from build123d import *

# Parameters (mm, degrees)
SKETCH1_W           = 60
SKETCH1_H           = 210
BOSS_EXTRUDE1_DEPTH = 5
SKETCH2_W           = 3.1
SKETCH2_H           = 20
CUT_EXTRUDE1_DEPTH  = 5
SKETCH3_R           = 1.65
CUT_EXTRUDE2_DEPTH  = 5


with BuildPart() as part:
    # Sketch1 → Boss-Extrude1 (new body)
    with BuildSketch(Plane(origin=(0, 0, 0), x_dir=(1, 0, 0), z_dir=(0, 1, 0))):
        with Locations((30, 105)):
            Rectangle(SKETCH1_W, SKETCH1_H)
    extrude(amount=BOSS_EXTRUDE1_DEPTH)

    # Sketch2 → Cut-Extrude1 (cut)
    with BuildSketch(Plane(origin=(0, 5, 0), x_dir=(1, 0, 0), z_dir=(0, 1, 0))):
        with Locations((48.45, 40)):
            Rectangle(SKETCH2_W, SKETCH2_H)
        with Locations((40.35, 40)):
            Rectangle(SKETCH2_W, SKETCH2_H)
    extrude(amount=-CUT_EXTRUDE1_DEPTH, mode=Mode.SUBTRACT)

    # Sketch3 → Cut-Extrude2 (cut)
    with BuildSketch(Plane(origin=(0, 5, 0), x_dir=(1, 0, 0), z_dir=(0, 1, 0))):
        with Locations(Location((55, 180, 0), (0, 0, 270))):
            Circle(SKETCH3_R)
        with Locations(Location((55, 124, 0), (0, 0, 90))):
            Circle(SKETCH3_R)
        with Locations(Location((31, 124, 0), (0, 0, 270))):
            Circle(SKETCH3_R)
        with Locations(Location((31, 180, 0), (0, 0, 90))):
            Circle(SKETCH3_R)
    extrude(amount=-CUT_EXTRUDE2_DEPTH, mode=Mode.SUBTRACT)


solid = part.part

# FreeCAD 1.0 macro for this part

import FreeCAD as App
import Part
import Sketcher

V = App.Vector
Q = App.Units.Quantity

doc = App.newDocument("Part")
params = doc.addObject("Spreadsheet::Sheet", "Params")
for row, (alias, value) in enumerate([
    ("sketch1_width", "60 mm"),
    ("sketch1_height", "210 mm"),
    ("pad1_length", "5 mm"),
    ("sketch2_height", "20 mm"),
    ("sketch2_width", "3.1 mm"),
    ("pocket1_length", "5 mm"),
    ("sketch3_diameter", "3.3 mm"),
    ("pocket2_length", "5 mm"),
], start=1):
    params.set(f"A{row}", alias)
    params.set(f"B{row}", "=" + value)
    params.setAlias(f"B{row}", alias)

body = doc.addObject("PartDesign::Body", "Body")

# Sketch on XZ plane
sketch1 = doc.addObject("Sketcher::SketchObject", "Sketch")
body.addObject(sketch1)
sketch1.AttachmentSupport = (doc.XZ_Plane, [""])
sketch1.MapMode = "FlatFace"
sketch1.addGeometry([
    Part.LineSegment(V(0, -210, 0), V(0, 0, 0)),
    Part.LineSegment(V(0, 0, 0), V(60, 0, 0)),
    Part.LineSegment(V(60, 0, 0), V(60, -210, 0)),
    Part.LineSegment(V(60, -210, 0), V(0, -210, 0)),
], False)
sketch1.addConstraint([
    Sketcher.Constraint("Coincident", 0, 2, 1, 1),
    Sketcher.Constraint("Coincident", 1, 2, 2, 1),
    Sketcher.Constraint("Coincident", 2, 2, 3, 1),
    Sketcher.Constraint("Coincident", 3, 2, 0, 1),
    Sketcher.Constraint("Vertical", 0),
    Sketcher.Constraint("Horizontal", 1),
    Sketcher.Constraint("Vertical", 2),
    Sketcher.Constraint("Horizontal", 3),
    Sketcher.Constraint("Coincident", 0, 2, -1, 1),
    Sketcher.Constraint("DistanceX", 1, 1, 1, 2, Q("60 mm")),
    Sketcher.Constraint("DistanceY", 0, 1, 0, 2, Q("210 mm")),
])
sketch1.setExpression("Constraints[9]", "Params.sketch1_width")
sketch1.setExpression("Constraints[10]", "Params.sketch1_height")
pad1 = doc.addObject("PartDesign::Pad", "Pad")
body.addObject(pad1)
pad1.Profile = sketch1
pad1.setExpression("Length", "Params.pad1_length")
pad1.Reversed = True

# Sketch on XZ plane
sketch2 = doc.addObject("Sketcher::SketchObject", "Sketch001")
body.addObject(sketch2)
sketch2.AttachmentSupport = (doc.XZ_Plane, [""])
sketch2.MapMode = "FlatFace"
sketch2.AttachmentOffset = App.Placement(V(0, 0, -5), App.Rotation())
sketch2.addGeometry([
    Part.LineSegment(V(46.9, -50, 0), V(46.9, -30, 0)),  # 0
    Part.LineSegment(V(46.9, -30, 0), V(50, -30, 0)),  # 1
    Part.LineSegment(V(50, -30, 0), V(50, -50, 0)),  # 2
    Part.LineSegment(V(50, -50, 0), V(46.9, -50, 0)),  # 3
    Part.LineSegment(V(38.8, -50, 0), V(38.8, -30, 0)),  # 4
    Part.LineSegment(V(38.8, -30, 0), V(41.9, -30, 0)),  # 5
    Part.LineSegment(V(41.9, -30, 0), V(41.9, -50, 0)),  # 6
    Part.LineSegment(V(41.9, -50, 0), V(38.8, -50, 0)),  # 7
], False)
sketch2.addConstraint([
    Sketcher.Constraint("Coincident", 0, 2, 1, 1),
    Sketcher.Constraint("Coincident", 1, 2, 2, 1),
    Sketcher.Constraint("Coincident", 2, 2, 3, 1),
    Sketcher.Constraint("Coincident", 3, 2, 0, 1),
    Sketcher.Constraint("Coincident", 4, 2, 5, 1),
    Sketcher.Constraint("Coincident", 5, 2, 6, 1),
    Sketcher.Constraint("Coincident", 6, 2, 7, 1),
    Sketcher.Constraint("Coincident", 7, 2, 4, 1),
    Sketcher.Constraint("Vertical", 0),
    Sketcher.Constraint("Horizontal", 1),
    Sketcher.Constraint("Vertical", 2),
    Sketcher.Constraint("Horizontal", 3),
    Sketcher.Constraint("Vertical", 4),
    Sketcher.Constraint("Horizontal", 5),
    Sketcher.Constraint("Vertical", 6),
    Sketcher.Constraint("Horizontal", 7),
    Sketcher.Constraint("Horizontal", 1, 2, 4, 2),
    Sketcher.Constraint("Horizontal", 3, 2, 6, 2),
    Sketcher.Constraint("Equal", 3, 5),
    Sketcher.Constraint("DistanceY", 0, 1, 0, 2, Q("20 mm")),
    Sketcher.Constraint("DistanceX", 1, 1, 1, 2, Q("3.1 mm")),
    Sketcher.Constraint("DistanceY", 0, 2, -1, 1, Q("30 mm")),
    Sketcher.Constraint("DistanceX", -1, 1, 1, 2, Q("50 mm")),
    Sketcher.Constraint("DistanceX", 5, 2, 0, 2, Q("5 mm")),
])
sketch2.setExpression("Constraints[19]", "Params.sketch2_height")
sketch2.setExpression("Constraints[20]", "Params.sketch2_width")
pocket1 = doc.addObject("PartDesign::Pocket", "Pocket")
body.addObject(pocket1)
pocket1.Profile = sketch2
pocket1.setExpression("Length", "Params.pocket1_length")
pocket1.Reversed = True

# Sketch on XZ plane
sketch3 = doc.addObject("Sketcher::SketchObject", "Sketch002")
body.addObject(sketch3)
sketch3.AttachmentSupport = (doc.XZ_Plane, [""])
sketch3.MapMode = "FlatFace"
sketch3.AttachmentOffset = App.Placement(V(0, 0, -5), App.Rotation())
sketch3.addGeometry([
    Part.Circle(V(55, -180, 0), V(0, 0, 1), 1.65),
    Part.Circle(V(55, -124, 0), V(0, 0, 1), 1.65),
    Part.Circle(V(31, -124, 0), V(0, 0, 1), 1.65),
    Part.Circle(V(31, -180, 0), V(0, 0, 1), 1.65),
], False)
sketch3.addConstraint([
    Sketcher.Constraint("Equal", 0, 1),
    Sketcher.Constraint("Equal", 1, 2),
    Sketcher.Constraint("Equal", 2, 3),
    Sketcher.Constraint("Horizontal", 1, 3, 2, 3),
    Sketcher.Constraint("Horizontal", 0, 3, 3, 3),
    Sketcher.Constraint("Vertical", 0, 3, 1, 3),
    Sketcher.Constraint("Vertical", 2, 3, 3, 3),
    Sketcher.Constraint("Diameter", 0, Q("3.3 mm")),
    Sketcher.Constraint("DistanceX", -1, 1, 0, 3, Q("55 mm")),
    Sketcher.Constraint("DistanceY", 0, 3, -1, 1, Q("180 mm")),
    Sketcher.Constraint("DistanceY", 1, 3, -1, 1, Q("124 mm")),
    Sketcher.Constraint("DistanceX", -1, 1, 2, 3, Q("31 mm")),
])
sketch3.setExpression("Constraints[7]", "Params.sketch3_diameter")
pocket2 = doc.addObject("PartDesign::Pocket", "Pocket001")
body.addObject(pocket2)
pocket2.Profile = sketch3
pocket2.setExpression("Length", "Params.pocket2_length")
pocket2.Reversed = True

doc.recompute()
